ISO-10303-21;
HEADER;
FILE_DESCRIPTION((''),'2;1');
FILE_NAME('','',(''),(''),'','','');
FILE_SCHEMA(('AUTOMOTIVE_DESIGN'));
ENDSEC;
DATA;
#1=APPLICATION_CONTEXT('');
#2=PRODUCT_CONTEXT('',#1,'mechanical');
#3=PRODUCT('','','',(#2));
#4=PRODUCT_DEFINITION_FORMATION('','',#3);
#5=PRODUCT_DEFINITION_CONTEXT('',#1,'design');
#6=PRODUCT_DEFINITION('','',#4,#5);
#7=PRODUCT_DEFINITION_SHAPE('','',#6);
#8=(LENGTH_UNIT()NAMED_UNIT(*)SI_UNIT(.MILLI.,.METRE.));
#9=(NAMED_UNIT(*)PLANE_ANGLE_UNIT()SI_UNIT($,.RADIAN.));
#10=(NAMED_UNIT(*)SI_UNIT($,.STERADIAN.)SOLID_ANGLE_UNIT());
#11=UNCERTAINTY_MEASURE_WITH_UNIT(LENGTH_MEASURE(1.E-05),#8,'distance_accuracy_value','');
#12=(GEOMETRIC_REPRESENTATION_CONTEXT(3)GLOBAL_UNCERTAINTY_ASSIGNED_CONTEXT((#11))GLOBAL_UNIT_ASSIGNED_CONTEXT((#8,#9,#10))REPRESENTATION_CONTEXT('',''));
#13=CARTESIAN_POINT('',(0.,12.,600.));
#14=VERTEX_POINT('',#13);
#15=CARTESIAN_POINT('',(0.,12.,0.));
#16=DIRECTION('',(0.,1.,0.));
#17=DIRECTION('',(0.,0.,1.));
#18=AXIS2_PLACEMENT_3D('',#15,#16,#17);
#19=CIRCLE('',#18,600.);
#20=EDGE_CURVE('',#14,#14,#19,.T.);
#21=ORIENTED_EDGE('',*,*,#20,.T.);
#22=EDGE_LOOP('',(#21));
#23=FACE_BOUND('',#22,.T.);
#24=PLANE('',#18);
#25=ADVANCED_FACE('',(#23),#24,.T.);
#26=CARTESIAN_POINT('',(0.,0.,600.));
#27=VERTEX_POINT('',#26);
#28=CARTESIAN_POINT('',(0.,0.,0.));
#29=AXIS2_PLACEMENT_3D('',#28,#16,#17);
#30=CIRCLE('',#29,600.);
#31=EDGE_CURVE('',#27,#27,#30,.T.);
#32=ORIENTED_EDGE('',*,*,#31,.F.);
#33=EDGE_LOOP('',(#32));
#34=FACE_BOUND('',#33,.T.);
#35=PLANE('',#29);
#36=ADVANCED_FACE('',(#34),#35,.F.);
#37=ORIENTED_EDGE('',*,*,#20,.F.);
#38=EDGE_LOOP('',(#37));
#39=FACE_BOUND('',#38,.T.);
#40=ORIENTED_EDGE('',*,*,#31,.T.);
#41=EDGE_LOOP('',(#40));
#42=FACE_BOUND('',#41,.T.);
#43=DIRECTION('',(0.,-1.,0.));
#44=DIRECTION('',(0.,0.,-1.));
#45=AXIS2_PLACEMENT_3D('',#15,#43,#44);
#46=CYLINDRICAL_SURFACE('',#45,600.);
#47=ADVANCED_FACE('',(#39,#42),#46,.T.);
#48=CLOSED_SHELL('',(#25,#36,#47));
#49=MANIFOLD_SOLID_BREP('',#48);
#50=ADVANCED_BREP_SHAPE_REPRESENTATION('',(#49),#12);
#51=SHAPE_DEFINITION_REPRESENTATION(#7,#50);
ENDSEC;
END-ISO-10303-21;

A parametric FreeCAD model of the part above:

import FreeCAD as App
import Part
import Sketcher
from FreeCAD import Vector
Q = App.Units.Quantity

doc = App.newDocument("Part")
body = doc.addObject("PartDesign::Body", "Body")

# Sketch on XZ plane
sketch1 = body.newObject("Sketcher::SketchObject", "Sketch")
sketch1.AttachmentSupport = (doc.getObject("XZ_Plane"), [""])
sketch1.MapMode = "FlatFace"
sketch1.addGeometry(Part.Circle(Vector(0, 0, 0), Vector(0, 0, 1), 600), False)
sketch1.addConstraint(Sketcher.Constraint("Coincident", 0, 3, -1, 1))
sketch1.addConstraint(Sketcher.Constraint("Diameter", 0, Q("1200 mm")))
pad1 = body.newObject("PartDesign::Pad", "Pad")
pad1.Profile = sketch1
pad1.Length = 12
pad1.Reversed = True

doc.recompute()
